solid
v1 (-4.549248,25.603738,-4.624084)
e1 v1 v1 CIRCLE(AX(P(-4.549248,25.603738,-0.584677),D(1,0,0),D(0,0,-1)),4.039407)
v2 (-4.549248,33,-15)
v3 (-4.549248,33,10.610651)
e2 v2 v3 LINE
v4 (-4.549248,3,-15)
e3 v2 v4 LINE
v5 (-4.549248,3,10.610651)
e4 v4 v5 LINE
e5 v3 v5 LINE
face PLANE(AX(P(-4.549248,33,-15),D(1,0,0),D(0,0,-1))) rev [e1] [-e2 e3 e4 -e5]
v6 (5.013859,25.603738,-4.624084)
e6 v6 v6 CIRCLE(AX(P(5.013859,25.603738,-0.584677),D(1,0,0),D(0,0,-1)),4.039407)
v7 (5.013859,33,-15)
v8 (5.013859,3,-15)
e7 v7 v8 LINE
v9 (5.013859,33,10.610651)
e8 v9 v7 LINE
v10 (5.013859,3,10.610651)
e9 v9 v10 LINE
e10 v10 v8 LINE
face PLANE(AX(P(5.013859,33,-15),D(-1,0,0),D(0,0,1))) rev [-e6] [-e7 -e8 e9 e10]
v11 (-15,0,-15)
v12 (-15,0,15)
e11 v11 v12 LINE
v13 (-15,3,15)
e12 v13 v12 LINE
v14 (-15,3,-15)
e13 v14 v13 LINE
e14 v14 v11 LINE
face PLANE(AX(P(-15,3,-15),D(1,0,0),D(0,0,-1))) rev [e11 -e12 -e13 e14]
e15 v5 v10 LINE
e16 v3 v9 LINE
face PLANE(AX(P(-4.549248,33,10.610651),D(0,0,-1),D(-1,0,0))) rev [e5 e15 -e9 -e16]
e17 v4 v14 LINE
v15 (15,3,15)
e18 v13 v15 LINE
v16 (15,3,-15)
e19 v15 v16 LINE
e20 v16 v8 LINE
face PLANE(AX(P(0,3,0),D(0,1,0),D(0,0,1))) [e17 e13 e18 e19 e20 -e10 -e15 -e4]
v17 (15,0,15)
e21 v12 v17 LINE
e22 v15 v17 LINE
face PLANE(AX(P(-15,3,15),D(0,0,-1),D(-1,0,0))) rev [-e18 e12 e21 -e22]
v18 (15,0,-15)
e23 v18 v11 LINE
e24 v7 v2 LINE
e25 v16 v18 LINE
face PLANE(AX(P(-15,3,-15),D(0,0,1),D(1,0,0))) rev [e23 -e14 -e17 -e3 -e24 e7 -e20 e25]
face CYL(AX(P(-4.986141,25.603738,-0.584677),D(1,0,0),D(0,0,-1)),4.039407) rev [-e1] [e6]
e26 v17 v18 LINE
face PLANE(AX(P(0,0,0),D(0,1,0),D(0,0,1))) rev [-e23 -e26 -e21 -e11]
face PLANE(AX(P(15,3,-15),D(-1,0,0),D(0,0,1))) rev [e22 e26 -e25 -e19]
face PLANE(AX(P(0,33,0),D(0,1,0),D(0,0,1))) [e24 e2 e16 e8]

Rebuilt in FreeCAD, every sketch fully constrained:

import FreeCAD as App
import Part
import Sketcher

doc = App.newDocument("Part")
body = doc.addObject("PartDesign::Body", "Body")

sketch1 = doc.addObject("Sketcher::SketchObject", "Sketch")
body.addObject(sketch1)
sketch1.AttachmentSupport = (doc.XZ_Plane, [""])
sketch1.MapMode = "FlatFace"
sketch1.addGeometry([
    Part.LineSegment(App.Vector(-15, -15, 0), App.Vector(-15, 15, 0)),
    Part.LineSegment(App.Vector(-15, 15, 0), App.Vector(15, 15, 0)),
    Part.LineSegment(App.Vector(15, 15, 0), App.Vector(15, -15, 0)),
    Part.LineSegment(App.Vector(15, -15, 0), App.Vector(-15, -15, 0)),
], False)
sketch1.addConstraint([
    Sketcher.Constraint("Coincident", 0, 2, 1, 1),
    Sketcher.Constraint("Coincident", 1, 2, 2, 1),
    Sketcher.Constraint("Coincident", 2, 2, 3, 1),
    Sketcher.Constraint("Coincident", 3, 2, 0, 1),
    Sketcher.Constraint("Vertical", 0),
    Sketcher.Constraint("Horizontal", 1),
    Sketcher.Constraint("Vertical", 2),
    Sketcher.Constraint("Horizontal", 3),
    Sketcher.Constraint("Symmetric", 0, 2, 2, 2, -1, 1),
    Sketcher.Constraint("Equal", 3, 0),
    Sketcher.Constraint("DistanceX", 1, 1, 1, 2, 30.0),
])
pad1 = doc.addObject("PartDesign::Pad", "Pad")
body.addObject(pad1)
pad1.Profile = sketch1
pad1.Length = 3
pad1.Reversed = True

sketch2 = doc.addObject("Sketcher::SketchObject", "Sketch001")
body.addObject(sketch2)
sketch2.AttachmentSupport = (doc.XZ_Plane, [""])
sketch2.MapMode = "FlatFace"
sketch2.AttachmentOffset = App.Placement(App.Vector(0, 0, -3), App.Rotation())
sketch2.addGeometry([
    Part.LineSegment(App.Vector(-5, -15, 0), App.Vector(-5, 11, 0)),
    Part.LineSegment(App.Vector(-5, 11, 0), App.Vector(5, 11, 0)),
    Part.LineSegment(App.Vector(5, 11, 0), App.Vector(5, -15, 0)),
    Part.LineSegment(App.Vector(5, -15, 0), App.Vector(-5, -15, 0)),
], False)
sketch2.addConstraint([
    Sketcher.Constraint("Coincident", 0, 2, 1, 1),
    Sketcher.Constraint("Coincident", 1, 2, 2, 1),
    Sketcher.Constraint("Coincident", 2, 2, 3, 1),
    Sketcher.Constraint("Coincident", 3, 2, 0, 1),
    Sketcher.Constraint("Vertical", 0),
    Sketcher.Constraint("Horizontal", 1),
    Sketcher.Constraint("Vertical", 2),
    Sketcher.Constraint("Horizontal", 3),
    Sketcher.Constraint("DistanceY", 2, 2, -1, 1, 15.0),
    Sketcher.Constraint("DistanceY", 0, 1, 0, 2, 25.610651),
    Sketcher.Constraint("DistanceX", 1, 1, 1, 2, 9.563107),
    Sketcher.Constraint("DistanceX", -1, 1, 1, 2, 5.013859),
])
pad2 = doc.addObject("PartDesign::Pad", "Pad001")
body.addObject(pad2)
pad2.Profile = sketch2
pad2.Length = 30
pad2.Reversed = True

sketch3 = doc.addObject("Sketcher::SketchObject", "Sketch002")
body.addObject(sketch3)
sketch3.AttachmentSupport = (doc.YZ_Plane, [""])
sketch3.MapMode = "FlatFace"
sketch3.AttachmentOffset = App.Placement(App.Vector(0, 0, 5.013859), App.Rotation())
sketch3.addGeometry(Part.Circle(App.Vector(25.6, -0.6, 0), App.Vector(0, 0, 1), 4), False)
sketch3.addConstraint([
    Sketcher.Constraint("Diameter", 0, 8.078814),
    Sketcher.Constraint("DistanceX", -1, 1, 0, 3, 25.603738),
    Sketcher.Constraint("DistanceY", 0, 3, -1, 1, 0.584677),
])
pocket1 = doc.addObject("PartDesign::Pocket", "Pocket")
body.addObject(pocket1)
pocket1.Profile = sketch3
pocket1.Length = 10

doc.recompute()
